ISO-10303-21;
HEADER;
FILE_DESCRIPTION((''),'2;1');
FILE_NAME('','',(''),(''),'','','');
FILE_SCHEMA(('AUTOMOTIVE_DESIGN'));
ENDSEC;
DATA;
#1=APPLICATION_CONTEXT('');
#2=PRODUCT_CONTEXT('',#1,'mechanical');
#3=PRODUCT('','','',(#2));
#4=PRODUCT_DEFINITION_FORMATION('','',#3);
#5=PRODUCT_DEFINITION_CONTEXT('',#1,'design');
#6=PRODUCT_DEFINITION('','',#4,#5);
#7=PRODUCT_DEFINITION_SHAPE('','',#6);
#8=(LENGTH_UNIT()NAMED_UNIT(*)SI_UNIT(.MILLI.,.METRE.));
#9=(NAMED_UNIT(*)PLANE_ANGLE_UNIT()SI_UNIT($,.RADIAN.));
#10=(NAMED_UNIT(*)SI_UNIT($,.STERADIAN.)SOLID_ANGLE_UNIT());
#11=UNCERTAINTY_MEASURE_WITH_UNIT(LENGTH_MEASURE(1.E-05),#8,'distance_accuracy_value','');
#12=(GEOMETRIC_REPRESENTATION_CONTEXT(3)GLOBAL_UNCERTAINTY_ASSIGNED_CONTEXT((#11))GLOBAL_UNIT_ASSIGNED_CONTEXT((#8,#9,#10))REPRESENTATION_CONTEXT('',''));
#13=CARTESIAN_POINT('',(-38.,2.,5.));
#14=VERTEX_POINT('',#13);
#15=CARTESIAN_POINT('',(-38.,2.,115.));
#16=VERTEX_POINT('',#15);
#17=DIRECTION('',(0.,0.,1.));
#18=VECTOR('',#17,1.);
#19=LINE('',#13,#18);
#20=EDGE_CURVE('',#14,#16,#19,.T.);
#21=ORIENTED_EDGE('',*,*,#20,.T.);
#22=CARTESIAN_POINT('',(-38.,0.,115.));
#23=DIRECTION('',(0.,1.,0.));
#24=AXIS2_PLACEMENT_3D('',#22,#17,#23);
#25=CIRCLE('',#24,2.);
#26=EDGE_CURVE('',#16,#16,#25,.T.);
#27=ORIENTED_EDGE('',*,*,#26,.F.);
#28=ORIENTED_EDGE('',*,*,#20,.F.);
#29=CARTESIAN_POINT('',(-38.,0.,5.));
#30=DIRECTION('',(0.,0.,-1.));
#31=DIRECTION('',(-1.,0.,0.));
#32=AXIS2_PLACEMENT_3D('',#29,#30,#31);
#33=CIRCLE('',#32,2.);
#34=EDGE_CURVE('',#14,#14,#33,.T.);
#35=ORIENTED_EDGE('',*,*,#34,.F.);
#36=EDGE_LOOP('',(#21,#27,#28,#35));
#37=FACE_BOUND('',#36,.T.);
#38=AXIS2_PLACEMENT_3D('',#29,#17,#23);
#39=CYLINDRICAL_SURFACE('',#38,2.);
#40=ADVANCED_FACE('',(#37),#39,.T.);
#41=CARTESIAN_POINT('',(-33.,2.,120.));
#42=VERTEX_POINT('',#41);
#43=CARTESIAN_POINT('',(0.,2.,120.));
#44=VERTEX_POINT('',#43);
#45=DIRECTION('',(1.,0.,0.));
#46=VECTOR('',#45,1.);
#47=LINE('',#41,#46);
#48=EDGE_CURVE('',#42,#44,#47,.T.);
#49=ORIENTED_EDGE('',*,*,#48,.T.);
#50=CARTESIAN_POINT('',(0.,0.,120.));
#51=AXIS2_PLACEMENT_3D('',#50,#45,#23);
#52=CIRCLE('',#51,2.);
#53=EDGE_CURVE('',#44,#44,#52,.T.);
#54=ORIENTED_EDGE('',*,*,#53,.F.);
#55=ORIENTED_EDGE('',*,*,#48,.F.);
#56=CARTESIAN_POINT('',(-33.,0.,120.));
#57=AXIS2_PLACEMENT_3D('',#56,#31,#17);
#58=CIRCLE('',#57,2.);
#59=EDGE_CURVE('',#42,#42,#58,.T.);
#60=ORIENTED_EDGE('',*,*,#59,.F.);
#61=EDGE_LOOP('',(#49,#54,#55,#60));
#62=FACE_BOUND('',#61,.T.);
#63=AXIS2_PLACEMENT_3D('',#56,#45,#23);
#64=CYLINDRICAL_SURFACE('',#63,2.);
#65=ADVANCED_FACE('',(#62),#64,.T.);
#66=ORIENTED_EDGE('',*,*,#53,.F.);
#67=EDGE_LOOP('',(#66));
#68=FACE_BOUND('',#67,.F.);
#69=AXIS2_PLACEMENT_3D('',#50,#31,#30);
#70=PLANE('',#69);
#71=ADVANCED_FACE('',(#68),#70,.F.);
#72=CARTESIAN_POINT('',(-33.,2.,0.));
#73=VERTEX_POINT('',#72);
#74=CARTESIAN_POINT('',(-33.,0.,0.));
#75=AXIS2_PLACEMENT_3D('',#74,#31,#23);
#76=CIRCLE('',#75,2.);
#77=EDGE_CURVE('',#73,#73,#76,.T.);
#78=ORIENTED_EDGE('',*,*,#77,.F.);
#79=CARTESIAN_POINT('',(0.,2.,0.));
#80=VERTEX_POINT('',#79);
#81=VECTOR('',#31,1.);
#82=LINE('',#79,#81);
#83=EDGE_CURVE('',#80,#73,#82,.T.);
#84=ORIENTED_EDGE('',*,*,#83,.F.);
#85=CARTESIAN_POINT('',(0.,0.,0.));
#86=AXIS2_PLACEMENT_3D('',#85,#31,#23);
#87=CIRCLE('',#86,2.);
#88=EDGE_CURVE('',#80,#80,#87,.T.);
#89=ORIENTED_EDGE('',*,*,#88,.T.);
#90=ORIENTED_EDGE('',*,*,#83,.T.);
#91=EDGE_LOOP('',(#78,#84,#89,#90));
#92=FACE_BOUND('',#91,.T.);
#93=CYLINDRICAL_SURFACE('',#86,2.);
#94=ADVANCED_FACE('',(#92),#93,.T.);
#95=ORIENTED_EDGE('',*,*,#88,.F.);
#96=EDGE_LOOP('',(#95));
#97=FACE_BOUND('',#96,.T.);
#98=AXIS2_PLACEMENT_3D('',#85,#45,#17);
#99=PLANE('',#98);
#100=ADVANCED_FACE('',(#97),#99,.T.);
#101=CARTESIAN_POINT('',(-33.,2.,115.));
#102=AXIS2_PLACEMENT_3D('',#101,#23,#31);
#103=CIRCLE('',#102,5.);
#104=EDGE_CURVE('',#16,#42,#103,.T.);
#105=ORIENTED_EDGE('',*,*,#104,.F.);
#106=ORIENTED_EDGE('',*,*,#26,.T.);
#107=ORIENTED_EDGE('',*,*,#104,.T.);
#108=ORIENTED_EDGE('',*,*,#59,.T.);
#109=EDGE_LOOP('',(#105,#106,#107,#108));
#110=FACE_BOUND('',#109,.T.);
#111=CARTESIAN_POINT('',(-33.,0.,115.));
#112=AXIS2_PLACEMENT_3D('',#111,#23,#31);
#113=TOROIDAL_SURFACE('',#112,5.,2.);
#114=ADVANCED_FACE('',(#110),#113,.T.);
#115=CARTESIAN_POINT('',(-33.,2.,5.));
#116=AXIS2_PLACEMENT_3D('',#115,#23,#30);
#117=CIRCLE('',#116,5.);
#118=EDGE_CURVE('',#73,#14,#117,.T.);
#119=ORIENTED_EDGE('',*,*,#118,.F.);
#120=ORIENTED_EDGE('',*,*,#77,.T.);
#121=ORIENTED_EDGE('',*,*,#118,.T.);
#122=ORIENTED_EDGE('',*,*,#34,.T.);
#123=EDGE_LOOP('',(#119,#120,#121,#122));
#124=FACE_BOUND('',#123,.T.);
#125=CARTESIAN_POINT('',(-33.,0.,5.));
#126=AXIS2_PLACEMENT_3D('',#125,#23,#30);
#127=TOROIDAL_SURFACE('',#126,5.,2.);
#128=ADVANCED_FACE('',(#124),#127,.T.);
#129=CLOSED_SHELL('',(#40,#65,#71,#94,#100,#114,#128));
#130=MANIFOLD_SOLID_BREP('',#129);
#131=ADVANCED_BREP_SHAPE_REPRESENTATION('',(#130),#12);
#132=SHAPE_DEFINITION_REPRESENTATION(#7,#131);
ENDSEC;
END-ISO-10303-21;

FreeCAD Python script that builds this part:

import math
import FreeCAD as App
import Part
import Sketcher

V = App.Vector

doc = App.newDocument("Part")
body = doc.addObject("PartDesign::Body", "Body")

# Sketch on YZ plane
sketch1 = doc.addObject("Sketcher::SketchObject", "Sketch")
body.addObject(sketch1)
sketch1.AttachmentSupport = (doc.YZ_Plane, [""])
sketch1.MapMode = "FlatFace"
sketch1.addGeometry(Part.Circle(V(0, 0, 0), V(0, 0, 1), 2), False)
sketch1.addConstraint([
    Sketcher.Constraint("Coincident", 0, 3, -1, 1),
    Sketcher.Constraint("Diameter", 0, 4.0),
])

# Sketch on XZ plane
sketch2 = doc.addObject("Sketcher::SketchObject", "Sketch001")
body.addObject(sketch2)
sketch2.AttachmentSupport = (doc.XZ_Plane, [""])
sketch2.MapMode = "FlatFace"
sketch2.addGeometry([
    Part.LineSegment(V(0, 0, 0), V(-33, 0, 0)),  # 0
    Part.ArcOfCircle(Part.Circle(V(-33, 5, 0), V(0, 0, 1), 5), math.radians(180), math.radians(270)),  # 1
    Part.LineSegment(V(-38, 5, 0), V(-38, 115, 0)),  # 2
    Part.ArcOfCircle(Part.Circle(V(-33, 115, 0), V(0, 0, 1), 5), math.radians(90), math.radians(180)),  # 3
    Part.LineSegment(V(-33, 120, 0), V(0, 120, 0)),  # 4
], False)
sketch2.addConstraint([
    Sketcher.Constraint("Tangent", 0, 2, 1, 2),
    Sketcher.Constraint("Tangent", 1, 1, 2, 1),
    Sketcher.Constraint("Tangent", 2, 2, 3, 2),
    Sketcher.Constraint("Tangent", 3, 1, 4, 1),
    Sketcher.Constraint("Horizontal", 0),
    Sketcher.Constraint("Vertical", 2),
    Sketcher.Constraint("Horizontal", 4),
    Sketcher.Constraint("Coincident", 0, 1, -1, 1),
    Sketcher.Constraint("Equal", 1, 3),
    Sketcher.Constraint("PointOnObject", 4, 2, -2),
    Sketcher.Constraint("Radius", 1, 5.0),
    Sketcher.Constraint("DistanceX", 0, 2, 0, 1, 33.0),
    Sketcher.Constraint("DistanceY", 2, 1, 2, 2, 110.0),
])
doc.recompute()

additivepipe = doc.addObject("PartDesign::AdditivePipe", "AdditivePipe")
body.addObject(additivepipe)
additivepipe.Profile = sketch1
additivepipe.Spine = (sketch2, ["Edge1", "Edge2", "Edge3", "Edge4", "Edge5"])

doc.recompute()
